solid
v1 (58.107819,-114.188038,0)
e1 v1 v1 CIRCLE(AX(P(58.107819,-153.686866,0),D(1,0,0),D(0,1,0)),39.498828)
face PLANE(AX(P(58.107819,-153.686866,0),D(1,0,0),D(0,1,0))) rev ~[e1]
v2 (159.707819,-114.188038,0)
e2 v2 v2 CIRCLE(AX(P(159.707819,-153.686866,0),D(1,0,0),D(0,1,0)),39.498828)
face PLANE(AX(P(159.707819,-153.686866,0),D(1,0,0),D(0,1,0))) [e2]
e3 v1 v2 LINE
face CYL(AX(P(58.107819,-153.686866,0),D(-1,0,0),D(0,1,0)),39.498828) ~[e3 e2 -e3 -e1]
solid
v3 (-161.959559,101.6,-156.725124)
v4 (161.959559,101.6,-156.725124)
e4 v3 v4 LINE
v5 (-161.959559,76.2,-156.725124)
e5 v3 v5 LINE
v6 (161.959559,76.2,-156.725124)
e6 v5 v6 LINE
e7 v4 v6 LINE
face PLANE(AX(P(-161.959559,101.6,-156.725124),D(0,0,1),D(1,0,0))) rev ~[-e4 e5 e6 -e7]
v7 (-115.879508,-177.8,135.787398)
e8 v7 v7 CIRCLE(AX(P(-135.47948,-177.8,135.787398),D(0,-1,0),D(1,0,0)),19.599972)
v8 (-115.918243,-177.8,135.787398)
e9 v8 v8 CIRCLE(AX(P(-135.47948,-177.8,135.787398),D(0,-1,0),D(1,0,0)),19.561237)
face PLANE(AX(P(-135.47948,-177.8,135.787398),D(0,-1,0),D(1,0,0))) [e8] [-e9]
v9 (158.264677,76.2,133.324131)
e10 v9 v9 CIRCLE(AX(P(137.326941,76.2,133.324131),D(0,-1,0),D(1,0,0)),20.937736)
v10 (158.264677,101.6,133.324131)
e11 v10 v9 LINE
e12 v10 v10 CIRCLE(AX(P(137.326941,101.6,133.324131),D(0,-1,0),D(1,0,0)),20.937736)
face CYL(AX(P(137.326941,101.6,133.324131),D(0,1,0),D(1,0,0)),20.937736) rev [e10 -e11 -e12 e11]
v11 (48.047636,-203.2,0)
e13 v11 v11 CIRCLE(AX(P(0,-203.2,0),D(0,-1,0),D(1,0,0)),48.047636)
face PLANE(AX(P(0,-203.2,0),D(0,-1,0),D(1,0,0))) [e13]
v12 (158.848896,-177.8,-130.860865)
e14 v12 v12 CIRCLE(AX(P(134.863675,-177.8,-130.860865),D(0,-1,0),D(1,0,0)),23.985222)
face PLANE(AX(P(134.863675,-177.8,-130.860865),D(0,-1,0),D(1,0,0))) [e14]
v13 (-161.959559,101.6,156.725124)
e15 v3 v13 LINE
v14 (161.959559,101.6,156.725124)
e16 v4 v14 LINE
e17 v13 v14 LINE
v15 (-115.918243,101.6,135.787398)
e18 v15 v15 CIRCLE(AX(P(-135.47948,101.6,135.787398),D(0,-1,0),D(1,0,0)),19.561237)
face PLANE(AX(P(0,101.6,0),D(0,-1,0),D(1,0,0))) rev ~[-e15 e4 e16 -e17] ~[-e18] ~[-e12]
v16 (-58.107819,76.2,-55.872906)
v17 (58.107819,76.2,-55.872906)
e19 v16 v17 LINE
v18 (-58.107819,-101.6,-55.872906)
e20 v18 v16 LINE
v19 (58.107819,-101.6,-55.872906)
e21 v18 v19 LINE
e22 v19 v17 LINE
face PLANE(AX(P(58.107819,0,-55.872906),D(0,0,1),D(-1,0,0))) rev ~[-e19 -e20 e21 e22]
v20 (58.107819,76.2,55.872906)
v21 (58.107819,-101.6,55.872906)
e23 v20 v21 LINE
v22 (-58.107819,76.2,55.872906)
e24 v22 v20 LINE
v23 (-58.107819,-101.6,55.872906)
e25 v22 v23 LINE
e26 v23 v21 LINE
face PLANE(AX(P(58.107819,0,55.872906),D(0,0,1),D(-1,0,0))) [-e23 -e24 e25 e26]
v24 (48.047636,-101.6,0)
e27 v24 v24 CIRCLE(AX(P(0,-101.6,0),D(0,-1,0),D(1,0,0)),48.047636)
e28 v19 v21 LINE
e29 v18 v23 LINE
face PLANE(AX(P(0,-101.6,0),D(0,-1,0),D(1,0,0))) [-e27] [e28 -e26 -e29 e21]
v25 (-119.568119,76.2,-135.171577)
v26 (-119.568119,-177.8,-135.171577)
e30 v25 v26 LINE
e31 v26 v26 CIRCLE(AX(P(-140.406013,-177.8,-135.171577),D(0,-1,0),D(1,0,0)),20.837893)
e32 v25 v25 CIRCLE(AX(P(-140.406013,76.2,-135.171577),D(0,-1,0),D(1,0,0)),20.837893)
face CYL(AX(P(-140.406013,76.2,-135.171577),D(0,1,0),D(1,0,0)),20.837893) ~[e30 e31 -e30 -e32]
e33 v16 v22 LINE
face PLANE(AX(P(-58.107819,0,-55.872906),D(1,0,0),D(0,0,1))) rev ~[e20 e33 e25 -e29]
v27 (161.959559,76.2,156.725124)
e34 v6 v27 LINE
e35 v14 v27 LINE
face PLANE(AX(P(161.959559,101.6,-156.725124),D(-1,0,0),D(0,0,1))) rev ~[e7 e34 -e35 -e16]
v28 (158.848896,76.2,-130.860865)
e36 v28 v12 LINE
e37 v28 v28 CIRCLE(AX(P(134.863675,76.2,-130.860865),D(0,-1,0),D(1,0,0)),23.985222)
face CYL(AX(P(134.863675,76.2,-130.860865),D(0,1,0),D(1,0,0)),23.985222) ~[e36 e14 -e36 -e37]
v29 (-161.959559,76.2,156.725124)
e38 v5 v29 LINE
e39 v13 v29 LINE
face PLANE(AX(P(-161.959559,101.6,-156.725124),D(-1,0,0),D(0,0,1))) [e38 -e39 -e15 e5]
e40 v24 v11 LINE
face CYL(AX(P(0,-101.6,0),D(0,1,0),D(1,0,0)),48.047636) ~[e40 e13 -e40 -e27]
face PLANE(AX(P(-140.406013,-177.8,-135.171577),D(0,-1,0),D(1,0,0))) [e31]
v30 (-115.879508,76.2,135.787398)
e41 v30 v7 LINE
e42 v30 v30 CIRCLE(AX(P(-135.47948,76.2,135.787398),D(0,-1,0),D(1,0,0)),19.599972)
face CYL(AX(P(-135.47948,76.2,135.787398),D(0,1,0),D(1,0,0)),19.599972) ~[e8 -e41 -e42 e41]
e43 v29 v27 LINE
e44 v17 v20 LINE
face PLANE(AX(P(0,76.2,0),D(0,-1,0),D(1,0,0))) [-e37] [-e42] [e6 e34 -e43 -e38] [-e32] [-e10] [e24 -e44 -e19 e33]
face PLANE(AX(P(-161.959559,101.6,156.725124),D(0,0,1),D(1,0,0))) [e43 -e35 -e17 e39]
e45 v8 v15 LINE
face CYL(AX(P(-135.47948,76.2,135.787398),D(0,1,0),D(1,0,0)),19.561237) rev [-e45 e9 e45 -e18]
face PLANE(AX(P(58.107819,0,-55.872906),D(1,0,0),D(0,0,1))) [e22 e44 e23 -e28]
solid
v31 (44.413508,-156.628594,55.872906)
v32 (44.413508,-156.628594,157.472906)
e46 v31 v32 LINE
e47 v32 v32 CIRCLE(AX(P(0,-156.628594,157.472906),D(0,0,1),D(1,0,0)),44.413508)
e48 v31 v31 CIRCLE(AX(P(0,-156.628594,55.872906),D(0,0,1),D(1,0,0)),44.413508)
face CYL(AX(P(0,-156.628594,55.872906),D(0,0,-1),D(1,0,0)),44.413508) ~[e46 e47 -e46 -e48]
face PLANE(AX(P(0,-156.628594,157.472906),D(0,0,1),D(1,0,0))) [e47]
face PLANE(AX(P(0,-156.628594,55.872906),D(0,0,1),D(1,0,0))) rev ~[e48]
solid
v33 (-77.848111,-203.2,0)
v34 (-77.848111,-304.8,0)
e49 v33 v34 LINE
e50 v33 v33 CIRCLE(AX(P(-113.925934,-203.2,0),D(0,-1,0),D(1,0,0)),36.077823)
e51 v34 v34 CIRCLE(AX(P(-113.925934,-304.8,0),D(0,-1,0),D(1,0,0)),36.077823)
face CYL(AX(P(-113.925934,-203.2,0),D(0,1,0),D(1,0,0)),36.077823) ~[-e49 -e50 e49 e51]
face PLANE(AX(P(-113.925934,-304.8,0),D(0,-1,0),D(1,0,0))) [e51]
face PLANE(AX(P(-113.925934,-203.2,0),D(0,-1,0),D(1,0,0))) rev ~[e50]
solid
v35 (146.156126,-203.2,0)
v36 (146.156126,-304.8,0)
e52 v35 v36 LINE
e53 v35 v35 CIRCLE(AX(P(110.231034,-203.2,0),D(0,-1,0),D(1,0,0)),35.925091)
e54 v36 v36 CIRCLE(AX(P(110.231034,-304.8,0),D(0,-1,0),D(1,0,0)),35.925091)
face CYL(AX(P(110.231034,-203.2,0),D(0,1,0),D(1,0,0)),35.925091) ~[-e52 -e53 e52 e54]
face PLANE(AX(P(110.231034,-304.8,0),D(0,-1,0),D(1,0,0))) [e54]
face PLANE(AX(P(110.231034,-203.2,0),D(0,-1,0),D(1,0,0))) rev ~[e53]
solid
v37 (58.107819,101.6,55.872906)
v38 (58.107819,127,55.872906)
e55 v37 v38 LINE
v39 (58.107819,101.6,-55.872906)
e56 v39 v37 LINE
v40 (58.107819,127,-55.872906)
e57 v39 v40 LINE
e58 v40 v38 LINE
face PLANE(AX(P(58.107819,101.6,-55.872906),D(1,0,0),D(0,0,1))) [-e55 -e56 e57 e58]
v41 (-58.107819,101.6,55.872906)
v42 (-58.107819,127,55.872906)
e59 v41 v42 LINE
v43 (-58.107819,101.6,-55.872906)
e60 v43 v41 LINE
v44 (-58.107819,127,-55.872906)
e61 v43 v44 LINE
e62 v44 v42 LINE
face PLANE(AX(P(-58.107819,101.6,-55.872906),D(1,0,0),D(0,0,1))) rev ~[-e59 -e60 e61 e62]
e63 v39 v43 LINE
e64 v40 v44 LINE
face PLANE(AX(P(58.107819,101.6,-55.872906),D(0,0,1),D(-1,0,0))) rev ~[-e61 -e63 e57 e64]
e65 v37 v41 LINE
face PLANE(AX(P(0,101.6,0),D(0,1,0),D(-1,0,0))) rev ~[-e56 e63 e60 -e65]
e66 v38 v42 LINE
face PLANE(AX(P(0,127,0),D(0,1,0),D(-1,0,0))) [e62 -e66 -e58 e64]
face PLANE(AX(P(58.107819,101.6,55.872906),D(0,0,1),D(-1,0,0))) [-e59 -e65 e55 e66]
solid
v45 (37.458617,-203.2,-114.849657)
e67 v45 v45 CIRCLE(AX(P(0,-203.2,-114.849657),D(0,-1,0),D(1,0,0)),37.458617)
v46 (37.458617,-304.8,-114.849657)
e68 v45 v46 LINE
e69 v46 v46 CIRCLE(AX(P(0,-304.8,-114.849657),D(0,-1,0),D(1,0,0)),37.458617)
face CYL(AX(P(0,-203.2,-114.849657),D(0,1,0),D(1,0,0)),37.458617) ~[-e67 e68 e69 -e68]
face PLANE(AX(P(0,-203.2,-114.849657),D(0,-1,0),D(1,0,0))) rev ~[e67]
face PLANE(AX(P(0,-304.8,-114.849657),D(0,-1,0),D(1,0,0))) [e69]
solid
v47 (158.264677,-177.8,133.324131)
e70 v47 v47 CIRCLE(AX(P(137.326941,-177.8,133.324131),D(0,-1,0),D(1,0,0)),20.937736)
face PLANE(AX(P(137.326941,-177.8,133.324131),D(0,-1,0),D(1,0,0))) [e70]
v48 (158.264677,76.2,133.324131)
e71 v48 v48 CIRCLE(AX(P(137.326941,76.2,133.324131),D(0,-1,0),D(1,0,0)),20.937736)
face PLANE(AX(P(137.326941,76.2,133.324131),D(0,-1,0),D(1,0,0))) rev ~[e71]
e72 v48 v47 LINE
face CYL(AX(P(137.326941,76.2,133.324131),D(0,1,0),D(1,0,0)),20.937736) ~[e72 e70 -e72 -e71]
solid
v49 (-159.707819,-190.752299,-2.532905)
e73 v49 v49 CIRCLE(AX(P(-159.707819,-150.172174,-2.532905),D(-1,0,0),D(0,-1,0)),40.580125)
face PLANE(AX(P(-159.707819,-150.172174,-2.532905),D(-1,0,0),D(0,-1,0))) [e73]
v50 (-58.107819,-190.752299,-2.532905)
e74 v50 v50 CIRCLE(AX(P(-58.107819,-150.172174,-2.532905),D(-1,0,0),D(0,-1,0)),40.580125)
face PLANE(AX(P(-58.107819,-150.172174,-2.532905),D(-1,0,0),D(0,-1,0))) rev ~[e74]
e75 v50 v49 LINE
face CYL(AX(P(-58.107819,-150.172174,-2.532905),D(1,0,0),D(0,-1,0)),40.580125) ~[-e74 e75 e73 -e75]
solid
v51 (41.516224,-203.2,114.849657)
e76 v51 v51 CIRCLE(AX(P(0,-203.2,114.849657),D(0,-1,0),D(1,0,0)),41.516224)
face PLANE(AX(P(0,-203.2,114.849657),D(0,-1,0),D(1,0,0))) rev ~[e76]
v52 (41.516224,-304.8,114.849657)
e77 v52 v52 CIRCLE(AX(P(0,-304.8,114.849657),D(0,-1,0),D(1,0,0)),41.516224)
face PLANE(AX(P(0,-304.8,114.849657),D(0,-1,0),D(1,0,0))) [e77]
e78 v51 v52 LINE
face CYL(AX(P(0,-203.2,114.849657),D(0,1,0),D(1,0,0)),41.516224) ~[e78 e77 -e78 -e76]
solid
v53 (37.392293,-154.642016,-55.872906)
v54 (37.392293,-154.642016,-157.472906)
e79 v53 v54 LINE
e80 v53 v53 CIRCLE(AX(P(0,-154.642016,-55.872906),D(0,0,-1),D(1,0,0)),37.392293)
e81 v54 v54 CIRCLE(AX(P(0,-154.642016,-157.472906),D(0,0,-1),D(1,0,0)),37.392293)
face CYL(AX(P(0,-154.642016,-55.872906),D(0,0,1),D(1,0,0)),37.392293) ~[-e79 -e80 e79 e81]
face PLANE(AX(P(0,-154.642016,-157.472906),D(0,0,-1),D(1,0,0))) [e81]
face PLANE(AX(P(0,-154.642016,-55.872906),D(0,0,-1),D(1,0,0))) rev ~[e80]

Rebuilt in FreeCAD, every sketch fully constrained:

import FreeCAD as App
import Part
import Sketcher
from FreeCAD import Vector
Q = App.Units.Quantity


def add_polygon(sketch, points):
    """Adds a closed chain of lines whose ends are joined by coincident constraints."""
    first, n = sketch.GeometryCount, len(points)
    for a, b in zip(points, points[1:] + points[:1]):
        sketch.addGeometry(Part.LineSegment(App.Vector(*a, 0), App.Vector(*b, 0)), False)
    for i in range(n):
        sketch.addConstraint(Sketcher.Constraint("Coincident", first + i, 2, first + (i + 1) % n, 1))

doc = App.newDocument("Part")
body = doc.addObject("PartDesign::Body", "Body")

# Sketch on XZ plane
sketch1 = body.newObject("Sketcher::SketchObject", "Sketch")
sketch1.AttachmentSupport = (doc.getObject("XZ_Plane"), [""])
sketch1.MapMode = "FlatFace"
add_polygon(sketch1, [(-58.703795, 59.150785), (-58.703795, -59.150785), (58.703795, -59.150785), (58.703795, 59.150785)])  # lines 0-3
sketch1.addConstraint(Sketcher.Constraint("Vertical", 0))
sketch1.addConstraint(Sketcher.Constraint("Horizontal", 1))
sketch1.addConstraint(Sketcher.Constraint("Vertical", 2))
sketch1.addConstraint(Sketcher.Constraint("Horizontal", 3))
sketch1.addConstraint(Sketcher.Constraint("Symmetric", 0, 2, 2, 2, -1, 1))
sketch1.addConstraint(Sketcher.Constraint("DistanceX", 1, 1, 1, 2, 117.40759))
sketch1.addConstraint(Sketcher.Constraint("DistanceY", 0, 2, 0, 1, 118.30157))
pad1 = body.newObject("PartDesign::Pad", "Pad")
pad1.Profile = sketch1
pad1.Length = Q("2 in")

# Sketch on XZ plane
sketch2 = body.newObject("Sketcher::SketchObject", "Sketch001")
sketch2.AttachmentSupport = (doc.getObject("XZ_Plane"), [""])
sketch2.MapMode = "FlatFace"
sketch2.addGeometry(Part.Circle(Vector(0, 0, 0), Vector(0, 0, 1), 46.909585), False)
sketch2.addConstraint(Sketcher.Constraint("Coincident", 0, 3, -1, 1))
sketch2.addConstraint(Sketcher.Constraint("Diameter", 0, 93.819171))
pad2 = body.newObject("PartDesign::Pad", "Pad001")
pad2.Profile = sketch2
pad2.Length = Q("2 in")

# Sketch on XZ plane
sketch3 = body.newObject("Sketcher::SketchObject", "Sketch002")
sketch3.AttachmentSupport = (doc.getObject("XZ_Plane"), [""])
sketch3.MapMode = "FlatFace"
sketch3.AttachmentOffset = App.Placement(Vector(0, 0, 2 * 25.4), App.Rotation())
sketch3.addGeometry(Part.Circle(Vector(0, 0, 0), Vector(0, 0, 1), 42.263229), False)
sketch3.addConstraint(Sketcher.Constraint("Coincident", 0, 3, -1, 1))
sketch3.addConstraint(Sketcher.Constraint("Diameter", 0, 84.526459))
pad3 = body.newObject("PartDesign::Pad", "Pad002")
pad3.Profile = sketch3
pad3.Length = Q("2 in")
body2 = doc.addObject("PartDesign::Body", "Body001")

# Sketch on XZ plane
sketch4 = body2.newObject("Sketcher::SketchObject", "Sketch003")
sketch4.AttachmentSupport = (doc.getObject("XZ_Plane001"), [""])
sketch4.MapMode = "FlatFace"
add_polygon(sketch4, [(-27.41497, 56.766871), (-27.41497, -56.766871), (27.41497, -56.766871), (27.41497, 56.766871)])  # lines 0-3
sketch4.addConstraint(Sketcher.Constraint("Vertical", 0))
sketch4.addConstraint(Sketcher.Constraint("Horizontal", 1))
sketch4.addConstraint(Sketcher.Constraint("Vertical", 2))
sketch4.addConstraint(Sketcher.Constraint("Horizontal", 3))
sketch4.addConstraint(Sketcher.Constraint("Symmetric", 0, 2, 2, 2, -1, 1))
sketch4.addConstraint(Sketcher.Constraint("DistanceX", 1, 1, 1, 2, 54.82994))
sketch4.addConstraint(Sketcher.Constraint("DistanceY", 0, 2, 0, 1, 113.533743))
pad4 = body2.newObject("PartDesign::Pad", "Pad003")
pad4.Profile = sketch4
pad4.Length = Q("2 in")

# Sketch on YZ plane
sketch5 = body2.newObject("Sketcher::SketchObject", "Sketch004")
sketch5.AttachmentSupport = (doc.getObject("YZ_Plane001"), [""])
sketch5.MapMode = "FlatFace"
sketch5.AttachmentOffset = App.Placement(Vector(0, 0, 27.41497), App.Rotation())
add_polygon(sketch5, [(-50.8, 56.766871), (-50.8, -56.766871), (0, -56.766871), (0, 56.766871)])  # lines 0-3
sketch5.addConstraint(Sketcher.Constraint("Vertical", 0))
sketch5.addConstraint(Sketcher.Constraint("Horizontal", 1))
sketch5.addConstraint(Sketcher.Constraint("Vertical", 2))
sketch5.addConstraint(Sketcher.Constraint("Horizontal", 3))
sketch5.addConstraint(Sketcher.Constraint("Symmetric", 1, 2, 2, 2, -1, 1))
sketch5.addConstraint(Sketcher.Constraint("DistanceX", 1, 1, 1, 2, Q("2 in")))
sketch5.addConstraint(Sketcher.Constraint("DistanceY", 0, 2, 0, 1, 113.533743))
pad5 = body2.newObject("PartDesign::Pad", "Pad004")
pad5.Profile = sketch5
pad5.Length = Q("1 in")
body3 = doc.addObject("PartDesign::Body", "Body002")

# Sketch on XZ plane
sketch6 = body3.newObject("Sketcher::SketchObject", "Sketch005")
sketch6.AttachmentSupport = (doc.getObject("XZ_Plane002"), [""])
sketch6.MapMode = "FlatFace"
add_polygon(sketch6, [(-58.107819, 55.872906), (-58.107819, -55.872906), (58.107819, -55.872906), (58.107819, 55.872906)])  # lines 0-3
sketch6.addConstraint(Sketcher.Constraint("Vertical", 0))
sketch6.addConstraint(Sketcher.Constraint("Horizontal", 1))
sketch6.addConstraint(Sketcher.Constraint("Vertical", 2))
sketch6.addConstraint(Sketcher.Constraint("Horizontal", 3))
sketch6.addConstraint(Sketcher.Constraint("Symmetric", 0, 2, 2, 2, -1, 1))
sketch6.addConstraint(Sketcher.Constraint("DistanceX", 1, 1, 1, 2, 116.215639))
sketch6.addConstraint(Sketcher.Constraint("DistanceY", 0, 2, 0, 1, 111.745812))
pad6 = body3.newObject("PartDesign::Pad", "Pad005")
pad6.Profile = sketch6
pad6.Length = Q("4 in")

# Sketch on XZ plane
sketch7 = body3.newObject("Sketcher::SketchObject", "Sketch006")
sketch7.AttachmentSupport = (doc.getObject("XZ_Plane002"), [""])
sketch7.MapMode = "FlatFace"
sketch7.addGeometry(Part.Circle(Vector(0, 0, 0), Vector(0, 0, 1), 40.061769), False)
sketch7.addConstraint(Sketcher.Constraint("Coincident", 0, 3, -1, 1))
sketch7.addConstraint(Sketcher.Constraint("Diameter", 0, 80.123537))
pad7 = body3.newObject("PartDesign::Pad", "Pad006")
pad7.Profile = sketch7
pad7.Length = Q("1 in")

# Sketch on XZ plane
sketch8 = body3.newObject("Sketcher::SketchObject", "Sketch007")
sketch8.AttachmentSupport = (doc.getObject("XZ_Plane002"), [""])
sketch8.MapMode = "FlatFace"
sketch8.AttachmentOffset = App.Placement(Vector(0, 0, 4 * 25.4), App.Rotation())
sketch8.addGeometry(Part.Circle(Vector(0, 0, 0), Vector(0, 0, 1), 48.047636), False)
sketch8.addConstraint(Sketcher.Constraint("Coincident", 0, 3, -1, 1))
sketch8.addConstraint(Sketcher.Constraint("Diameter", 0, 96.095273))
pad8 = body3.newObject("PartDesign::Pad", "Pad007")
pad8.Profile = sketch8
pad8.Length = Q("4 in")

# Sketch on XZ plane
sketch9 = body3.newObject("Sketcher::SketchObject", "Sketch008")
sketch9.AttachmentSupport = (doc.getObject("XZ_Plane002"), [""])
sketch9.MapMode = "FlatFace"
add_polygon(sketch9, [(58.107819, 55.872906), (58.107819, -55.872906), (-58.107819, -55.872906), (-58.107819, 55.872906)])  # lines 0-3
sketch9.addConstraint(Sketcher.Constraint("Vertical", 0))
sketch9.addConstraint(Sketcher.Constraint("Horizontal", 1))
sketch9.addConstraint(Sketcher.Constraint("Vertical", 2))
sketch9.addConstraint(Sketcher.Constraint("Horizontal", 3))
sketch9.addConstraint(Sketcher.Constraint("Symmetric", 0, 2, 2, 2, -1, 1))
sketch9.addConstraint(Sketcher.Constraint("DistanceX", 1, 2, 1, 1, 116.215639))
sketch9.addConstraint(Sketcher.Constraint("DistanceY", 0, 2, 0, 1, 111.745812))
pad9 = body3.newObject("PartDesign::Pad", "Pad008")
pad9.Profile = sketch9
pad9.Length = Q("4 in")
pad9.Reversed = True

# Sketch on XZ plane
sketch10 = body3.newObject("Sketcher::SketchObject", "Sketch009")
sketch10.AttachmentSupport = (doc.getObject("XZ_Plane002"), [""])
sketch10.MapMode = "FlatFace"
sketch10.AttachmentOffset = App.Placement(Vector(0, 0, -4 * 25.4), App.Rotation())
add_polygon(sketch10, [(-161.959559, 156.725124), (-161.959559, -156.725124), (161.959559, -156.725124), (161.959559, 156.725124)])  # lines 0-3
add_polygon(sketch10, [(58.107819, -55.872906), (-58.107819, -55.872906), (-58.107819, 55.872906), (58.107819, 55.872906)])  # lines 4-7
sketch10.addGeometry(Part.Circle(Vector(-135.47948, 135.787398, 0), Vector(0, 0, 1), 19.561237), False)  # 8
sketch10.addGeometry(Part.Circle(Vector(137.326941, 133.324131, 0), Vector(0, 0, 1), 20.937736), False)  # 9
sketch10.addConstraint(Sketcher.Constraint("Vertical", 0))
sketch10.addConstraint(Sketcher.Constraint("Horizontal", 1))
sketch10.addConstraint(Sketcher.Constraint("Vertical", 2))
sketch10.addConstraint(Sketcher.Constraint("Horizontal", 3))
sketch10.addConstraint(Sketcher.Constraint("Horizontal", 4))
sketch10.addConstraint(Sketcher.Constraint("Vertical", 5))
sketch10.addConstraint(Sketcher.Constraint("Horizontal", 6))
sketch10.addConstraint(Sketcher.Constraint("Vertical", 7))
sketch10.addConstraint(Sketcher.Constraint("Symmetric", 0, 2, 2, 2, -1, 1))
sketch10.addConstraint(Sketcher.Constraint("Symmetric", 4, 2, 6, 2, -1, 1))
sketch10.addConstraint(Sketcher.Constraint("Diameter", 8, 39.122474))
sketch10.addConstraint(Sketcher.Constraint("Diameter", 9, 41.875473))
sketch10.addConstraint(Sketcher.Constraint("DistanceX", 4, 2, 4, 1, 116.215639))
sketch10.addConstraint(Sketcher.Constraint("DistanceY", 5, 1, 5, 2, 111.745812))
sketch10.addConstraint(Sketcher.Constraint("DistanceX", 0, 2, 9, 3, 299.2865))
sketch10.addConstraint(Sketcher.Constraint("DistanceX", 8, 3, 6, 2, 193.587299))
sketch10.addConstraint(Sketcher.Constraint("DistanceX", 1, 1, 1, 2, 323.919117))
sketch10.addConstraint(Sketcher.Constraint("DistanceY", 0, 2, 0, 1, 313.450247))
sketch10.addConstraint(Sketcher.Constraint("DistanceY", -1, 1, 9, 3, 133.324131))
sketch10.addConstraint(Sketcher.Constraint("DistanceY", 0, 2, 8, 3, 292.512521))
pad10 = body3.newObject("PartDesign::Pad", "Pad009")
pad10.Profile = sketch10
pad10.Length = Q("1 in")

# Sketch on XZ plane
sketch11 = body3.newObject("Sketcher::SketchObject", "Sketch010")
sketch11.AttachmentSupport = (doc.getObject("XZ_Plane002"), [""])
sketch11.MapMode = "FlatFace"
sketch11.AttachmentOffset = App.Placement(Vector(0, 0, -3 * 25.4), App.Rotation())
sketch11.addGeometry(Part.Circle(Vector(-135.47948, 135.787398, 0), Vector(0, 0, 1), 19.599972), False)
sketch11.addGeometry(Part.Circle(Vector(-135.47948, 135.787398, 0), Vector(0, 0, 1), 19.561237), False)
sketch11.addConstraint(Sketcher.Constraint("Coincident", 1, 3, 0, 3))
sketch11.addConstraint(Sketcher.Constraint("Diameter", 0, 39.199944))
sketch11.addConstraint(Sketcher.Constraint("Diameter", 1, 39.122474))
sketch11.addConstraint(Sketcher.Constraint("DistanceX", 0, 3, -1, 1, 135.47948))
sketch11.addConstraint(Sketcher.Constraint("DistanceY", -1, 1, 0, 3, 135.787398))
pad11 = body3.newObject("PartDesign::Pad", "Pad010")
pad11.Profile = sketch11
pad11.Length = Q("10 in")

# Sketch on XZ plane
sketch12 = body3.newObject("Sketcher::SketchObject", "Sketch011")
sketch12.AttachmentSupport = (doc.getObject("XZ_Plane002"), [""])
sketch12.MapMode = "FlatFace"
sketch12.AttachmentOffset = App.Placement(Vector(0, 0, -3 * 25.4), App.Rotation())
sketch12.addGeometry(Part.Circle(Vector(-140.406013, -135.171577, 0), Vector(0, 0, 1), 20.837893), False)
sketch12.addConstraint(Sketcher.Constraint("Diameter", 0, 41.675786))
sketch12.addConstraint(Sketcher.Constraint("DistanceX", 0, 3, -1, 1, 140.406013))
sketch12.addConstraint(Sketcher.Constraint("DistanceY", 0, 3, -1, 1, 135.171577))
pad12 = body3.newObject("PartDesign::Pad", "Pad011")
pad12.Profile = sketch12
pad12.Length = Q("10 in")

# Sketch on XZ plane
sketch13 = body3.newObject("Sketcher::SketchObject", "Sketch012")
sketch13.AttachmentSupport = (doc.getObject("XZ_Plane002"), [""])
sketch13.MapMode = "FlatFace"
sketch13.AttachmentOffset = App.Placement(Vector(0, 0, -3 * 25.4), App.Rotation())
sketch13.addGeometry(Part.Circle(Vector(134.863675, -130.860865, 0), Vector(0, 0, 1), 23.985222), False)
sketch13.addConstraint(Sketcher.Constraint("Diameter", 0, Q("1.8886001 in")))
sketch13.addConstraint(Sketcher.Constraint("DistanceX", -1, 1, 0, 3, 134.863675))
sketch13.addConstraint(Sketcher.Constraint("DistanceY", 0, 3, -1, 1, 130.860865))
pad13 = body3.newObject("PartDesign::Pad", "Pad012")
pad13.Profile = sketch13
pad13.Length = Q("10 in")
body4 = doc.addObject("PartDesign::Body", "Body003")

# Sketch on YZ plane
sketch14 = body4.newObject("Sketcher::SketchObject", "Sketch013")
sketch14.AttachmentSupport = (doc.getObject("YZ_Plane003"), [""])
sketch14.MapMode = "FlatFace"
sketch14.AttachmentOffset = App.Placement(Vector(0, 0, -58.107819), App.Rotation())
sketch14.addGeometry(Part.Circle(Vector(-150.172174, -2.532905, 0), Vector(0, 0, 1), 40.580125), False)
sketch14.addConstraint(Sketcher.Constraint("Diameter", 0, 81.16025))
sketch14.addConstraint(Sketcher.Constraint("DistanceX", 0, 3, -1, 1, 150.172174))
sketch14.addConstraint(Sketcher.Constraint("DistanceY", 0, 3, -1, 1, 2.532905))
pad14 = body4.newObject("PartDesign::Pad", "Pad013")
pad14.Profile = sketch14
pad14.Length = Q("4 in")
pad14.Reversed = True
body5 = doc.addObject("PartDesign::Body", "Body004")

# Sketch on XY plane
sketch15 = body5.newObject("Sketcher::SketchObject", "Sketch014")
sketch15.AttachmentSupport = (doc.getObject("XY_Plane004"), [""])
sketch15.MapMode = "FlatFace"
sketch15.AttachmentOffset = App.Placement(Vector(0, 0, 55.872906), App.Rotation())
sketch15.addGeometry(Part.Circle(Vector(0, -156.628594, 0), Vector(0, 0, 1), 44.413508), False)
sketch15.addConstraint(Sketcher.Constraint("PointOnObject", 0, 3, -2))
sketch15.addConstraint(Sketcher.Constraint("Diameter", 0, 88.827016))
sketch15.addConstraint(Sketcher.Constraint("DistanceY", 0, 3, -1, 1, 156.628594))
pad15 = body5.newObject("PartDesign::Pad", "Pad014")
pad15.Profile = sketch15
pad15.Length = Q("4 in")
body6 = doc.addObject("PartDesign::Body", "Body005")

# Sketch on YZ plane
sketch16 = body6.newObject("Sketcher::SketchObject", "Sketch015")
sketch16.AttachmentSupport = (doc.getObject("YZ_Plane005"), [""])
sketch16.MapMode = "FlatFace"
sketch16.AttachmentOffset = App.Placement(Vector(0, 0, 58.107819), App.Rotation())
sketch16.addGeometry(Part.Circle(Vector(-153.686866, 0, 0), Vector(0, 0, 1), 39.498828), False)
sketch16.addConstraint(Sketcher.Constraint("PointOnObject", 0, 3, -1))
sketch16.addConstraint(Sketcher.Constraint("Diameter", 0, 78.997656))
sketch16.addConstraint(Sketcher.Constraint("DistanceX", 0, 3, -1, 1, 153.686866))
pad16 = body6.newObject("PartDesign::Pad", "Pad015")
pad16.Profile = sketch16
pad16.Length = Q("4 in")
body7 = doc.addObject("PartDesign::Body", "Body006")

# Sketch on XY plane
sketch17 = body7.newObject("Sketcher::SketchObject", "Sketch016")
sketch17.AttachmentSupport = (doc.getObject("XY_Plane006"), [""])
sketch17.MapMode = "FlatFace"
sketch17.AttachmentOffset = App.Placement(Vector(0, 0, -55.872906), App.Rotation())
sketch17.addGeometry(Part.Circle(Vector(0, -154.642016, 0), Vector(0, 0, 1), 37.392293), False)
sketch17.addConstraint(Sketcher.Constraint("PointOnObject", 0, 3, -2))
sketch17.addConstraint(Sketcher.Constraint("Diameter", 0, 74.784585))
sketch17.addConstraint(Sketcher.Constraint("DistanceY", 0, 3, -1, 1, 154.642016))
pad17 = body7.newObject("PartDesign::Pad", "Pad016")
pad17.Profile = sketch17
pad17.Length = Q("4 in")
pad17.Reversed = True
body8 = doc.addObject("PartDesign::Body", "Body007")

# Sketch on XZ plane
sketch18 = body8.newObject("Sketcher::SketchObject", "Sketch017")
sketch18.AttachmentSupport = (doc.getObject("XZ_Plane007"), [""])
sketch18.MapMode = "FlatFace"
sketch18.AttachmentOffset = App.Placement(Vector(0, 0, 8 * 25.4), App.Rotation())
sketch18.addGeometry(Part.Circle(Vector(0, 114.849657, 0), Vector(0, 0, 1), 41.516224), False)
sketch18.addConstraint(Sketcher.Constraint("PointOnObject", 0, 3, -2))
sketch18.addConstraint(Sketcher.Constraint("Diameter", 0, 83.032448))
sketch18.addConstraint(Sketcher.Constraint("DistanceY", -1, 1, 0, 3, 114.849657))
pad18 = body8.newObject("PartDesign::Pad", "Pad017")
pad18.Profile = sketch18
pad18.Length = Q("4 in")
body9 = doc.addObject("PartDesign::Body", "Body008")

# Sketch on XZ plane
sketch19 = body9.newObject("Sketcher::SketchObject", "Sketch018")
sketch19.AttachmentSupport = (doc.getObject("XZ_Plane008"), [""])
sketch19.MapMode = "FlatFace"
sketch19.AttachmentOffset = App.Placement(Vector(0, 0, 8 * 25.4), App.Rotation())
sketch19.addGeometry(Part.Circle(Vector(-113.925934, 0, 0), Vector(0, 0, 1), 36.077823), False)
sketch19.addConstraint(Sketcher.Constraint("PointOnObject", 0, 3, -1))
sketch19.addConstraint(Sketcher.Constraint("Diameter", 0, 72.155646))
sketch19.addConstraint(Sketcher.Constraint("DistanceX", 0, 3, -1, 1, 113.925934))
pad19 = body9.newObject("PartDesign::Pad", "Pad018")
pad19.Profile = sketch19
pad19.Length = Q("4 in")
body10 = doc.addObject("PartDesign::Body", "Body009")

# Sketch on XZ plane
sketch20 = body10.newObject("Sketcher::SketchObject", "Sketch019")
sketch20.AttachmentSupport = (doc.getObject("XZ_Plane009"), [""])
sketch20.MapMode = "FlatFace"
sketch20.AttachmentOffset = App.Placement(Vector(0, 0, 8 * 25.4), App.Rotation())
sketch20.addGeometry(Part.Circle(Vector(110.231034, 0, 0), Vector(0, 0, 1), 35.925091), False)
sketch20.addConstraint(Sketcher.Constraint("PointOnObject", 0, 3, -1))
sketch20.addConstraint(Sketcher.Constraint("Diameter", 0, 71.850182))
sketch20.addConstraint(Sketcher.Constraint("DistanceX", -1, 1, 0, 3, 110.231034))
pad20 = body10.newObject("PartDesign::Pad", "Pad019")
pad20.Profile = sketch20
pad20.Length = Q("4 in")
body11 = doc.addObject("PartDesign::Body", "Body010")

# Sketch on XZ plane
sketch21 = body11.newObject("Sketcher::SketchObject", "Sketch020")
sketch21.AttachmentSupport = (doc.getObject("XZ_Plane010"), [""])
sketch21.MapMode = "FlatFace"
sketch21.AttachmentOffset = App.Placement(Vector(0, 0, 8 * 25.4), App.Rotation())
sketch21.addGeometry(Part.Circle(Vector(0, -114.849657, 0), Vector(0, 0, 1), 37.458617), False)
sketch21.addConstraint(Sketcher.Constraint("PointOnObject", 0, 3, -2))
sketch21.addConstraint(Sketcher.Constraint("Diameter", 0, 74.917233))
sketch21.addConstraint(Sketcher.Constraint("DistanceY", 0, 3, -1, 1, 114.849657))
pad21 = body11.newObject("PartDesign::Pad", "Pad020")
pad21.Profile = sketch21
pad21.Length = Q("4 in")
body12 = doc.addObject("PartDesign::Body", "Body011")

# Sketch on XZ plane
sketch22 = body12.newObject("Sketcher::SketchObject", "Sketch021")
sketch22.AttachmentSupport = (doc.getObject("XZ_Plane011"), [""])
sketch22.MapMode = "FlatFace"
sketch22.AttachmentOffset = App.Placement(Vector(0, 0, -4 * 25.4), App.Rotation())
add_polygon(sketch22, [(161.959559, 156.725124), (161.959559, -156.725124), (-161.959559, -156.725124), (-161.959559, 156.725124)])  # lines 0-3
add_polygon(sketch22, [(-58.107819, -55.872906), (58.107819, -55.872906), (58.107819, 55.872906), (-58.107819, 55.872906)])  # lines 4-7
sketch22.addConstraint(Sketcher.Constraint("Vertical", 0))
sketch22.addConstraint(Sketcher.Constraint("Horizontal", 1))
sketch22.addConstraint(Sketcher.Constraint("Vertical", 2))
sketch22.addConstraint(Sketcher.Constraint("Horizontal", 3))
sketch22.addConstraint(Sketcher.Constraint("Horizontal", 4))
sketch22.addConstraint(Sketcher.Constraint("Vertical", 5))
sketch22.addConstraint(Sketcher.Constraint("Horizontal", 6))
sketch22.addConstraint(Sketcher.Constraint("Vertical", 7))
sketch22.addConstraint(Sketcher.Constraint("Symmetric", 0, 2, 2, 2, -1, 1))
sketch22.addConstraint(Sketcher.Constraint("Symmetric", 4, 2, 6, 2, -1, 1))
sketch22.addConstraint(Sketcher.Constraint("DistanceX", 4, 1, 4, 2, 116.215639))
sketch22.addConstraint(Sketcher.Constraint("DistanceY", 5, 1, 5, 2, 111.745812))
sketch22.addConstraint(Sketcher.Constraint("DistanceX", 1, 2, 1, 1, 323.919117))
sketch22.addConstraint(Sketcher.Constraint("DistanceY", 0, 2, 0, 1, 313.450247))
pad22 = body12.newObject("PartDesign::Pad", "Pad021")
pad22.Profile = sketch22
pad22.Length = Q("1 in")
pad22.Reversed = True

# Sketch on XZ plane
sketch23 = body12.newObject("Sketcher::SketchObject", "Sketch022")
sketch23.AttachmentSupport = (doc.getObject("XZ_Plane011"), [""])
sketch23.MapMode = "FlatFace"
sketch23.AttachmentOffset = App.Placement(Vector(0, 0, -4 * 25.4), App.Rotation())
sketch23.addGeometry(Part.Circle(Vector(-135.47948, 135.787398, 0), Vector(0, 0, 1), 19.561237), False)
sketch23.addConstraint(Sketcher.Constraint("Diameter", 0, 39.122474))
sketch23.addConstraint(Sketcher.Constraint("DistanceX", 0, 3, -1, 1, 135.47948))
sketch23.addConstraint(Sketcher.Constraint("DistanceY", -1, 1, 0, 3, 135.787398))
pad23 = body12.newObject("PartDesign::Pad", "Pad022")
pad23.Profile = sketch23
pad23.Length = Q("10 in")
body13 = doc.addObject("PartDesign::Body", "Body012")

# Sketch on XZ plane
sketch24 = body13.newObject("Sketcher::SketchObject", "Sketch023")
sketch24.AttachmentSupport = (doc.getObject("XZ_Plane012"), [""])
sketch24.MapMode = "FlatFace"
sketch24.AttachmentOffset = App.Placement(Vector(0, 0, -4 * 25.4), App.Rotation())
add_polygon(sketch24, [(58.107819, 55.872906), (58.107819, -55.872906), (-58.107819, -55.872906), (-58.107819, 55.872906)])  # lines 0-3
sketch24.addConstraint(Sketcher.Constraint("Vertical", 0))
sketch24.addConstraint(Sketcher.Constraint("Horizontal", 1))
sketch24.addConstraint(Sketcher.Constraint("Vertical", 2))
sketch24.addConstraint(Sketcher.Constraint("Horizontal", 3))
sketch24.addConstraint(Sketcher.Constraint("Symmetric", 0, 2, 2, 2, -1, 1))
sketch24.addConstraint(Sketcher.Constraint("DistanceX", 1, 2, 1, 1, 116.215639))
sketch24.addConstraint(Sketcher.Constraint("DistanceY", 0, 2, 0, 1, 111.745812))
pad24 = body13.newObject("PartDesign::Pad", "Pad023")
pad24.Profile = sketch24
pad24.Length = Q("1 in")
pad24.Reversed = True
body14 = doc.addObject("PartDesign::Body", "Body013")

# Sketch on XZ plane
sketch25 = body14.newObject("Sketcher::SketchObject", "Sketch024")
sketch25.AttachmentSupport = (doc.getObject("XZ_Plane013"), [""])
sketch25.MapMode = "FlatFace"
sketch25.AttachmentOffset = App.Placement(Vector(0, 0, -3 * 25.4), App.Rotation())
sketch25.addGeometry(Part.Circle(Vector(137.326941, 133.324131, 0), Vector(0, 0, 1), 20.937736), False)
sketch25.addConstraint(Sketcher.Constraint("Diameter", 0, 41.875473))
sketch25.addConstraint(Sketcher.Constraint("DistanceX", -1, 1, 0, 3, 137.326941))
sketch25.addConstraint(Sketcher.Constraint("DistanceY", -1, 1, 0, 3, 133.324131))
pad25 = body14.newObject("PartDesign::Pad", "Pad024")
pad25.Profile = sketch25
pad25.Length = Q("10 in")
body.Visibility = False
body2.Visibility = False
body12.Visibility = False

doc.recompute()
